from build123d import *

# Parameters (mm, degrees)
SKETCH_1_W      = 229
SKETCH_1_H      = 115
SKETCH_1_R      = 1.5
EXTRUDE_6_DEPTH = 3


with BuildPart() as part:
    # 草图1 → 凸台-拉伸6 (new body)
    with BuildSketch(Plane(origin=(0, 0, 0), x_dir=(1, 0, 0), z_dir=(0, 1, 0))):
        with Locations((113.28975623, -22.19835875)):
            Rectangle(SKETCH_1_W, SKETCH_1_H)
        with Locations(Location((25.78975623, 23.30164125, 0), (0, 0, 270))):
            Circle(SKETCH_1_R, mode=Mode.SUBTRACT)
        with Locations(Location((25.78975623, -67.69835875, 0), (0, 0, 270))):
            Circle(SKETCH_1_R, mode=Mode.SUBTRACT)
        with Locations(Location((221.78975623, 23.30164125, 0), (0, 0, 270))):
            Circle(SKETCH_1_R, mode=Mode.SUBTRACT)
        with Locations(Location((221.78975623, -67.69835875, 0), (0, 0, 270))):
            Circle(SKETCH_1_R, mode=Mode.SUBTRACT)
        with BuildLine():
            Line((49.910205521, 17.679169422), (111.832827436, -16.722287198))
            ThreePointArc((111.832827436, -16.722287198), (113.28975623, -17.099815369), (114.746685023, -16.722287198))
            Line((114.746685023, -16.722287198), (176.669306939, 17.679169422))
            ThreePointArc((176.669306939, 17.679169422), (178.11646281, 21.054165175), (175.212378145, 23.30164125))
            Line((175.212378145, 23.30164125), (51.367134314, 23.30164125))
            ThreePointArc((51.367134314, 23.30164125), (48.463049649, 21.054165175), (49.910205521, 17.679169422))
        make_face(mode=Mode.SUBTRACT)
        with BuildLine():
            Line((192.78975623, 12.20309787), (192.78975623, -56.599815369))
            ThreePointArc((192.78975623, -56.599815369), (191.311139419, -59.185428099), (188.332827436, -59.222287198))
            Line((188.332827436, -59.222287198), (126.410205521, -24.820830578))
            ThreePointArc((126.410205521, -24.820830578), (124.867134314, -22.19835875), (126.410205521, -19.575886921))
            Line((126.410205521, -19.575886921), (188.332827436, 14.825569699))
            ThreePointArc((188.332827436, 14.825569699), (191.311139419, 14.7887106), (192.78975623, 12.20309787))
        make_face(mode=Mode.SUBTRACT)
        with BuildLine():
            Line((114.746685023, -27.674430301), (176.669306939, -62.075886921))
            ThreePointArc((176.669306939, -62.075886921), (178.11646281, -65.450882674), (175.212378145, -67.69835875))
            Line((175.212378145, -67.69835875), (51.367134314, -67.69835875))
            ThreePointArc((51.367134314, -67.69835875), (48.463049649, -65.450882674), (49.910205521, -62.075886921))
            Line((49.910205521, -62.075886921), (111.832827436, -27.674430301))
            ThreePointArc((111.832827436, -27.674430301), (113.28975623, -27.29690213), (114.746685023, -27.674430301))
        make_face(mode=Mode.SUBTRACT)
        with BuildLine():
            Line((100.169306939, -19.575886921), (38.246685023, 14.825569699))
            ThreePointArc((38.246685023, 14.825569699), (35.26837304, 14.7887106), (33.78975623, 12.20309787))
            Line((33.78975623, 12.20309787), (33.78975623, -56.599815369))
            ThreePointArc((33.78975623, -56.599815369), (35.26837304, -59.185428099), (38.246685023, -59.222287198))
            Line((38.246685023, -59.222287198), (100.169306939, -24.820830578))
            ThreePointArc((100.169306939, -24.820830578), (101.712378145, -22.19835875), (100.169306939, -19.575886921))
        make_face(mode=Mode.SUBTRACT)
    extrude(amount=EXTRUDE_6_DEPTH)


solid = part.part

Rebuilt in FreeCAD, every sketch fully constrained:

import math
import FreeCAD as App
import Part
import Sketcher

V = App.Vector


def add_polygon(sketch, points):
    """Adds a closed chain of lines whose ends are joined by coincident constraints."""
    first, n = sketch.GeometryCount, len(points)
    for a, b in zip(points, points[1:] + points[:1]):
        sketch.addGeometry(Part.LineSegment(App.Vector(*a, 0), App.Vector(*b, 0)), False)
    for i in range(n):
        sketch.addConstraint(Sketcher.Constraint("Coincident", first + i, 2, first + (i + 1) % n, 1))

doc = App.newDocument("Part")
body = doc.addObject("PartDesign::Body", "Body")

sketch1 = body.newObject("Sketcher::SketchObject", "Sketch")
sketch1.AttachmentSupport = (doc.getObject("XZ_Plane"), [""])
sketch1.MapMode = "FlatFace"
add_polygon(sketch1, [(-1.2, -35.3), (-1.2, 79.7), (227.8, 79.7), (227.8, -35.3)])
sketch1.addGeometry(Part.Circle(V(25.8, 67.7, 0), V(0, 0, 1), 1.5), False)
sketch1.addGeometry(Part.ArcOfCircle(Part.Circle(V(113.3, 30.3, 0), V(0, 0, 1), 3), math.radians(-119), math.radians(-61)), False)
sketch1.addGeometry(Part.LineSegment(V(114.7, 27.7, 0), V(176.7, 62.1, 0)), False)
sketch1.addGeometry(Part.ArcOfCircle(Part.Circle(V(175.2, 64.7, 0), V(0, 0, 1), 3), math.radians(-61), math.radians(90)), False)
sketch1.addGeometry(Part.LineSegment(V(175.2, 67.7, 0), V(51.4, 67.7, 0)), False)
sketch1.addGeometry(Part.ArcOfCircle(Part.Circle(V(51.4, 64.7, 0), V(0, 0, 1), 3), math.radians(90), math.radians(241)), False)
sketch1.addGeometry(Part.LineSegment(V(49.9, 62.1, 0), V(111.8, 27.7, 0)), False)
sketch1.addGeometry(Part.Circle(V(221.8, 67.7, 0), V(0, 0, 1), 1.5), False)
sketch1.addGeometry(Part.LineSegment(V(38.2, -14.8, 0), V(100.2, 19.6, 0)), False)
sketch1.addGeometry(Part.ArcOfCircle(Part.Circle(V(98.7, 22.2, 0), V(0, 0, 1), 3), math.radians(-61), math.radians(61)), False)
sketch1.addGeometry(Part.LineSegment(V(100.2, 24.8, 0), V(38.2, 59.2, 0)), False)
sketch1.addGeometry(Part.ArcOfCircle(Part.Circle(V(36.8, 56.6, 0), V(0, 0, 1), 3), math.radians(61), math.radians(180)), False)
sketch1.addGeometry(Part.LineSegment(V(33.8, 56.6, 0), V(33.8, -12.2, 0)), False)
sketch1.addGeometry(Part.ArcOfCircle(Part.Circle(V(36.8, -12.2, 0), V(0, 0, 1), 3), math.radians(180), math.radians(299)), False)
sketch1.addGeometry(Part.Circle(V(25.8, -23.3, 0), V(0, 0, 1), 1.5), False)
sketch1.addGeometry(Part.LineSegment(V(111.8, 16.7, 0), V(49.9, -17.7, 0)), False)
sketch1.addGeometry(Part.ArcOfCircle(Part.Circle(V(51.4, -20.3, 0), V(0, 0, 1), 3), math.radians(119), math.radians(270)), False)
sketch1.addGeometry(Part.LineSegment(V(51.4, -23.3, 0), V(175.2, -23.3, 0)), False)
sketch1.addGeometry(Part.ArcOfCircle(Part.Circle(V(175.2, -20.3, 0), V(0, 0, 1), 3), math.radians(-90), math.radians(61)), False)
sketch1.addGeometry(Part.LineSegment(V(176.7, -17.7, 0), V(114.7, 16.7, 0)), False)
sketch1.addGeometry(Part.ArcOfCircle(Part.Circle(V(113.3, 14.1, 0), V(0, 0, 1), 3), math.radians(61), math.radians(119)), False)
sketch1.addGeometry(Part.ArcOfCircle(Part.Circle(V(189.8, -12.2, 0), V(0, 0, 1), 3), math.radians(-119), math.radians(0)), False)
sketch1.addGeometry(Part.LineSegment(V(192.8, -12.2, 0), V(192.8, 56.6, 0)), False)
sketch1.addGeometry(Part.ArcOfCircle(Part.Circle(V(189.8, 56.6, 0), V(0, 0, 1), 3), math.radians(0), math.radians(119)), False)
sketch1.addGeometry(Part.LineSegment(V(188.3, 59.2, 0), V(126.4, 24.8, 0)), False)
sketch1.addGeometry(Part.ArcOfCircle(Part.Circle(V(127.9, 22.2, 0), V(0, 0, 1), 3), math.radians(119), math.radians(241)), False)
sketch1.addGeometry(Part.LineSegment(V(126.4, 19.6, 0), V(188.3, -14.8, 0)), False)
sketch1.addGeometry(Part.Circle(V(221.8, -23.3, 0), V(0, 0, 1), 1.5), False)
sketch1.addConstraint(Sketcher.Constraint("Tangent", 5, 2, 6, 1))
sketch1.addConstraint(Sketcher.Constraint("Tangent", 6, 2, 7, 1))
sketch1.addConstraint(Sketcher.Constraint("Tangent", 7, 2, 8, 1))
sketch1.addConstraint(Sketcher.Constraint("Tangent", 8, 2, 9, 1))
sketch1.addConstraint(Sketcher.Constraint("Tangent", 9, 2, 10, 1))
sketch1.addConstraint(Sketcher.Constraint("Tangent", 10, 2, 5, 1))
sketch1.addConstraint(Sketcher.Constraint("Tangent", 12, 2, 13, 1))
sketch1.addConstraint(Sketcher.Constraint("Tangent", 13, 2, 14, 1))
sketch1.addConstraint(Sketcher.Constraint("Tangent", 14, 2, 15, 1))
sketch1.addConstraint(Sketcher.Constraint("Tangent", 15, 2, 16, 1))
sketch1.addConstraint(Sketcher.Constraint("Tangent", 16, 2, 17, 1))
sketch1.addConstraint(Sketcher.Constraint("Tangent", 17, 2, 12, 1))
sketch1.addConstraint(Sketcher.Constraint("Tangent", 19, 2, 20, 1))
sketch1.addConstraint(Sketcher.Constraint("Tangent", 20, 2, 21, 1))
sketch1.addConstraint(Sketcher.Constraint("Tangent", 21, 2, 22, 1))
sketch1.addConstraint(Sketcher.Constraint("Tangent", 22, 2, 23, 1))
sketch1.addConstraint(Sketcher.Constraint("Tangent", 23, 2, 24, 1))
sketch1.addConstraint(Sketcher.Constraint("Tangent", 24, 2, 19, 1))
sketch1.addConstraint(Sketcher.Constraint("Tangent", 25, 2, 26, 1))
sketch1.addConstraint(Sketcher.Constraint("Tangent", 26, 2, 27, 1))
sketch1.addConstraint(Sketcher.Constraint("Tangent", 27, 2, 28, 1))
sketch1.addConstraint(Sketcher.Constraint("Tangent", 28, 2, 29, 1))
sketch1.addConstraint(Sketcher.Constraint("Tangent", 29, 2, 30, 1))
sketch1.addConstraint(Sketcher.Constraint("Tangent", 30, 2, 25, 1))
sketch1.addConstraint(Sketcher.Constraint("Vertical", 0))
sketch1.addConstraint(Sketcher.Constraint("Horizontal", 1))
sketch1.addConstraint(Sketcher.Constraint("Vertical", 2))
sketch1.addConstraint(Sketcher.Constraint("Horizontal", 3))
sketch1.addConstraint(Sketcher.Constraint("Horizontal", 8))
sketch1.addConstraint(Sketcher.Constraint("Vertical", 16))
sketch1.addConstraint(Sketcher.Constraint("Horizontal", 21))
sketch1.addConstraint(Sketcher.Constraint("Vertical", 26))
sketch1.addConstraint(Sketcher.Constraint("Equal", 5, 7))
sketch1.addConstraint(Sketcher.Constraint("Equal", 7, 9))
sketch1.addConstraint(Sketcher.Constraint("Equal", 4, 11))
sketch1.addConstraint(Sketcher.Constraint("Equal", 9, 13))
sketch1.addConstraint(Sketcher.Constraint("Equal", 13, 15))
sketch1.addConstraint(Sketcher.Constraint("Equal", 15, 17))
sketch1.addConstraint(Sketcher.Constraint("Equal", 11, 18))
sketch1.addConstraint(Sketcher.Constraint("Equal", 17, 20))
sketch1.addConstraint(Sketcher.Constraint("Equal", 20, 22))
sketch1.addConstraint(Sketcher.Constraint("Equal", 22, 24))
sketch1.addConstraint(Sketcher.Constraint("Equal", 24, 25))
sketch1.addConstraint(Sketcher.Constraint("Equal", 25, 27))
sketch1.addConstraint(Sketcher.Constraint("Equal", 27, 29))
sketch1.addConstraint(Sketcher.Constraint("Equal", 18, 31))
sketch1.addConstraint(Sketcher.Constraint("Parallel", 6, 12))
sketch1.addConstraint(Sketcher.Constraint("Parallel", 10, 14))
sketch1.addConstraint(Sketcher.Constraint("Parallel", 12, 19))
sketch1.addConstraint(Sketcher.Constraint("Parallel", 14, 23))
sketch1.addConstraint(Sketcher.Constraint("Parallel", 19, 28))
sketch1.addConstraint(Sketcher.Constraint("Parallel", 23, 30))
sketch1.addConstraint(Sketcher.Constraint("Horizontal", 4, 3, 11, 3))
sketch1.addConstraint(Sketcher.Constraint("Horizontal", 17, 3, 25, 3))
sketch1.addConstraint(Sketcher.Constraint("Horizontal", 15, 3, 27, 3))
sketch1.addConstraint(Sketcher.Constraint("Horizontal", 13, 3, 29, 3))
sketch1.addConstraint(Sketcher.Constraint("Horizontal", 18, 3, 31, 3))
sketch1.addConstraint(Sketcher.Constraint("Horizontal", 11, 3, 7, 2))
sketch1.addConstraint(Sketcher.Constraint("Horizontal", 31, 3, 20, 2))
sketch1.addConstraint(Sketcher.Constraint("Vertical", 4, 3, 18, 3))
sketch1.addConstraint(Sketcher.Constraint("Vertical", 9, 3, 20, 3))
sketch1.addConstraint(Sketcher.Constraint("Vertical", 7, 3, 22, 3))
sketch1.addConstraint(Sketcher.Constraint("Vertical", 11, 3, 31, 3))
sketch1.addConstraint(Sketcher.Constraint("Equal", 10, 12))
sketch1.addConstraint(Sketcher.Constraint("Diameter", 4, 3.0))
sketch1.addConstraint(Sketcher.Constraint("Radius", 5, 3.0))
sketch1.addConstraint(Sketcher.Constraint("DistanceX", 1, 1, 1, 2, 229.0))
sketch1.addConstraint(Sketcher.Constraint("DistanceY", 0, 1, 0, 2, 115.0))
sketch1.addConstraint(Sketcher.Constraint("DistanceX", 4, 3, 11, 3, 196.0))
sketch1.addConstraint(Sketcher.Constraint("DistanceX", 4, 3, 15, 3, 11.0))
sketch1.addConstraint(Sketcher.Constraint("DistanceY", 18, 3, 4, 3, 91.0))
sketch1.addConstraint(Sketcher.Constraint("DistanceX", 25, 3, 11, 3, 32.0))
sketch1.addConstraint(Sketcher.Constraint("DistanceX", 0, 2, 4, 3, 27.0))
sketch1.addConstraint(Sketcher.Constraint("DistanceY", 4, 3, 0, 2, 12.0))
sketch1.addConstraint(Sketcher.Constraint("DistanceX", 4, 3, 5, 3, 87.5))
sketch1.addConstraint(Sketcher.Constraint("DistanceY", 13, 3, 9, 3, 42.5))
sketch1.addConstraint(Sketcher.Constraint("DistanceY", 13, 2, 10, 2, 2.8536))
sketch1.addConstraint(Sketcher.Constraint("DistanceX", 8, 2, 8, 1, 123.845244))
sketch1.addConstraint(Sketcher.Constraint("DistanceY", -1, 1, 4, 3, 67.698359))
sketch1.addConstraint(Sketcher.Constraint("DistanceX", -1, 1, 7, 3, 175.212378))
pad1 = body.newObject("PartDesign::Pad", "Pad")
pad1.Profile = sketch1
pad1.Length = 3
pad1.Reversed = True

doc.recompute()
